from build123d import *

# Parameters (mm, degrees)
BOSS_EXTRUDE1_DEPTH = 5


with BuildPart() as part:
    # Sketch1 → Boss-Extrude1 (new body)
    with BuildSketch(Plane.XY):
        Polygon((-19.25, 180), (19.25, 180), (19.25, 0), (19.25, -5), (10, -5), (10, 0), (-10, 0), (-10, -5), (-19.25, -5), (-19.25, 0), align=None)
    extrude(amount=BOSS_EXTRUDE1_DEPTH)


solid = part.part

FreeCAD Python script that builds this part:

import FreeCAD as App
import Part
import Sketcher
from FreeCAD import Vector

doc = App.newDocument("Part")
body = doc.addObject("PartDesign::Body", "Body")

sketch1 = body.newObject("Sketcher::SketchObject", "Sketch")
sketch1.AttachmentSupport = (doc.getObject("XY_Plane"), [""])
sketch1.MapMode = "FlatFace"
sketch1.addGeometry(Part.LineSegment(Vector(19, 180, 0), Vector(-19, 180, 0)), False)
sketch1.addGeometry(Part.LineSegment(Vector(-19, 180, 0), Vector(-19, -5, 0)), False)
sketch1.addGeometry(Part.LineSegment(Vector(-19, -5, 0), Vector(-10, -5, 0)), False)
sketch1.addGeometry(Part.LineSegment(Vector(-10, -5, 0), Vector(-10, 0, 0)), False)
sketch1.addGeometry(Part.LineSegment(Vector(-10, 0, 0), Vector(10, 0, 0)), False)
sketch1.addGeometry(Part.LineSegment(Vector(10, 0, 0), Vector(10, -5, 0)), False)
sketch1.addGeometry(Part.LineSegment(Vector(10, -5, 0), Vector(19, -5, 0)), False)
sketch1.addGeometry(Part.LineSegment(Vector(19, -5, 0), Vector(19, 180, 0)), False)
sketch1.addConstraint(Sketcher.Constraint("Coincident", 0, 2, 1, 1))
sketch1.addConstraint(Sketcher.Constraint("Coincident", 1, 2, 2, 1))
sketch1.addConstraint(Sketcher.Constraint("Coincident", 2, 2, 3, 1))
sketch1.addConstraint(Sketcher.Constraint("Coincident", 3, 2, 4, 1))
sketch1.addConstraint(Sketcher.Constraint("Coincident", 4, 2, 5, 1))
sketch1.addConstraint(Sketcher.Constraint("Coincident", 5, 2, 6, 1))
sketch1.addConstraint(Sketcher.Constraint("Coincident", 6, 2, 7, 1))
sketch1.addConstraint(Sketcher.Constraint("Coincident", 7, 2, 0, 1))
sketch1.addConstraint(Sketcher.Constraint("Horizontal", 0))
sketch1.addConstraint(Sketcher.Constraint("Vertical", 1))
sketch1.addConstraint(Sketcher.Constraint("Horizontal", 2))
sketch1.addConstraint(Sketcher.Constraint("Vertical", 3))
sketch1.addConstraint(Sketcher.Constraint("Horizontal", 4))
sketch1.addConstraint(Sketcher.Constraint("Vertical", 5))
sketch1.addConstraint(Sketcher.Constraint("Horizontal", 6))
sketch1.addConstraint(Sketcher.Constraint("Vertical", 7))
sketch1.addConstraint(Sketcher.Constraint("Symmetric", 3, 2, 4, 2, -1, 1))
sketch1.addConstraint(Sketcher.Constraint("Symmetric", 1, 2, 6, 2, -2))
sketch1.addConstraint(Sketcher.Constraint("DistanceX", 4, 1, 4, 2, 20.0))
sketch1.addConstraint(Sketcher.Constraint("DistanceY", 1, 2, 1, 1, 185.0))
sketch1.addConstraint(Sketcher.Constraint("DistanceY", 3, 1, 3, 2, 5.0))
sketch1.addConstraint(Sketcher.Constraint("DistanceX", 0, 2, 0, 1, 38.5))
pad1 = body.newObject("PartDesign::Pad", "Pad")
pad1.Profile = sketch1
pad1.Length = 5

doc.recompute()
